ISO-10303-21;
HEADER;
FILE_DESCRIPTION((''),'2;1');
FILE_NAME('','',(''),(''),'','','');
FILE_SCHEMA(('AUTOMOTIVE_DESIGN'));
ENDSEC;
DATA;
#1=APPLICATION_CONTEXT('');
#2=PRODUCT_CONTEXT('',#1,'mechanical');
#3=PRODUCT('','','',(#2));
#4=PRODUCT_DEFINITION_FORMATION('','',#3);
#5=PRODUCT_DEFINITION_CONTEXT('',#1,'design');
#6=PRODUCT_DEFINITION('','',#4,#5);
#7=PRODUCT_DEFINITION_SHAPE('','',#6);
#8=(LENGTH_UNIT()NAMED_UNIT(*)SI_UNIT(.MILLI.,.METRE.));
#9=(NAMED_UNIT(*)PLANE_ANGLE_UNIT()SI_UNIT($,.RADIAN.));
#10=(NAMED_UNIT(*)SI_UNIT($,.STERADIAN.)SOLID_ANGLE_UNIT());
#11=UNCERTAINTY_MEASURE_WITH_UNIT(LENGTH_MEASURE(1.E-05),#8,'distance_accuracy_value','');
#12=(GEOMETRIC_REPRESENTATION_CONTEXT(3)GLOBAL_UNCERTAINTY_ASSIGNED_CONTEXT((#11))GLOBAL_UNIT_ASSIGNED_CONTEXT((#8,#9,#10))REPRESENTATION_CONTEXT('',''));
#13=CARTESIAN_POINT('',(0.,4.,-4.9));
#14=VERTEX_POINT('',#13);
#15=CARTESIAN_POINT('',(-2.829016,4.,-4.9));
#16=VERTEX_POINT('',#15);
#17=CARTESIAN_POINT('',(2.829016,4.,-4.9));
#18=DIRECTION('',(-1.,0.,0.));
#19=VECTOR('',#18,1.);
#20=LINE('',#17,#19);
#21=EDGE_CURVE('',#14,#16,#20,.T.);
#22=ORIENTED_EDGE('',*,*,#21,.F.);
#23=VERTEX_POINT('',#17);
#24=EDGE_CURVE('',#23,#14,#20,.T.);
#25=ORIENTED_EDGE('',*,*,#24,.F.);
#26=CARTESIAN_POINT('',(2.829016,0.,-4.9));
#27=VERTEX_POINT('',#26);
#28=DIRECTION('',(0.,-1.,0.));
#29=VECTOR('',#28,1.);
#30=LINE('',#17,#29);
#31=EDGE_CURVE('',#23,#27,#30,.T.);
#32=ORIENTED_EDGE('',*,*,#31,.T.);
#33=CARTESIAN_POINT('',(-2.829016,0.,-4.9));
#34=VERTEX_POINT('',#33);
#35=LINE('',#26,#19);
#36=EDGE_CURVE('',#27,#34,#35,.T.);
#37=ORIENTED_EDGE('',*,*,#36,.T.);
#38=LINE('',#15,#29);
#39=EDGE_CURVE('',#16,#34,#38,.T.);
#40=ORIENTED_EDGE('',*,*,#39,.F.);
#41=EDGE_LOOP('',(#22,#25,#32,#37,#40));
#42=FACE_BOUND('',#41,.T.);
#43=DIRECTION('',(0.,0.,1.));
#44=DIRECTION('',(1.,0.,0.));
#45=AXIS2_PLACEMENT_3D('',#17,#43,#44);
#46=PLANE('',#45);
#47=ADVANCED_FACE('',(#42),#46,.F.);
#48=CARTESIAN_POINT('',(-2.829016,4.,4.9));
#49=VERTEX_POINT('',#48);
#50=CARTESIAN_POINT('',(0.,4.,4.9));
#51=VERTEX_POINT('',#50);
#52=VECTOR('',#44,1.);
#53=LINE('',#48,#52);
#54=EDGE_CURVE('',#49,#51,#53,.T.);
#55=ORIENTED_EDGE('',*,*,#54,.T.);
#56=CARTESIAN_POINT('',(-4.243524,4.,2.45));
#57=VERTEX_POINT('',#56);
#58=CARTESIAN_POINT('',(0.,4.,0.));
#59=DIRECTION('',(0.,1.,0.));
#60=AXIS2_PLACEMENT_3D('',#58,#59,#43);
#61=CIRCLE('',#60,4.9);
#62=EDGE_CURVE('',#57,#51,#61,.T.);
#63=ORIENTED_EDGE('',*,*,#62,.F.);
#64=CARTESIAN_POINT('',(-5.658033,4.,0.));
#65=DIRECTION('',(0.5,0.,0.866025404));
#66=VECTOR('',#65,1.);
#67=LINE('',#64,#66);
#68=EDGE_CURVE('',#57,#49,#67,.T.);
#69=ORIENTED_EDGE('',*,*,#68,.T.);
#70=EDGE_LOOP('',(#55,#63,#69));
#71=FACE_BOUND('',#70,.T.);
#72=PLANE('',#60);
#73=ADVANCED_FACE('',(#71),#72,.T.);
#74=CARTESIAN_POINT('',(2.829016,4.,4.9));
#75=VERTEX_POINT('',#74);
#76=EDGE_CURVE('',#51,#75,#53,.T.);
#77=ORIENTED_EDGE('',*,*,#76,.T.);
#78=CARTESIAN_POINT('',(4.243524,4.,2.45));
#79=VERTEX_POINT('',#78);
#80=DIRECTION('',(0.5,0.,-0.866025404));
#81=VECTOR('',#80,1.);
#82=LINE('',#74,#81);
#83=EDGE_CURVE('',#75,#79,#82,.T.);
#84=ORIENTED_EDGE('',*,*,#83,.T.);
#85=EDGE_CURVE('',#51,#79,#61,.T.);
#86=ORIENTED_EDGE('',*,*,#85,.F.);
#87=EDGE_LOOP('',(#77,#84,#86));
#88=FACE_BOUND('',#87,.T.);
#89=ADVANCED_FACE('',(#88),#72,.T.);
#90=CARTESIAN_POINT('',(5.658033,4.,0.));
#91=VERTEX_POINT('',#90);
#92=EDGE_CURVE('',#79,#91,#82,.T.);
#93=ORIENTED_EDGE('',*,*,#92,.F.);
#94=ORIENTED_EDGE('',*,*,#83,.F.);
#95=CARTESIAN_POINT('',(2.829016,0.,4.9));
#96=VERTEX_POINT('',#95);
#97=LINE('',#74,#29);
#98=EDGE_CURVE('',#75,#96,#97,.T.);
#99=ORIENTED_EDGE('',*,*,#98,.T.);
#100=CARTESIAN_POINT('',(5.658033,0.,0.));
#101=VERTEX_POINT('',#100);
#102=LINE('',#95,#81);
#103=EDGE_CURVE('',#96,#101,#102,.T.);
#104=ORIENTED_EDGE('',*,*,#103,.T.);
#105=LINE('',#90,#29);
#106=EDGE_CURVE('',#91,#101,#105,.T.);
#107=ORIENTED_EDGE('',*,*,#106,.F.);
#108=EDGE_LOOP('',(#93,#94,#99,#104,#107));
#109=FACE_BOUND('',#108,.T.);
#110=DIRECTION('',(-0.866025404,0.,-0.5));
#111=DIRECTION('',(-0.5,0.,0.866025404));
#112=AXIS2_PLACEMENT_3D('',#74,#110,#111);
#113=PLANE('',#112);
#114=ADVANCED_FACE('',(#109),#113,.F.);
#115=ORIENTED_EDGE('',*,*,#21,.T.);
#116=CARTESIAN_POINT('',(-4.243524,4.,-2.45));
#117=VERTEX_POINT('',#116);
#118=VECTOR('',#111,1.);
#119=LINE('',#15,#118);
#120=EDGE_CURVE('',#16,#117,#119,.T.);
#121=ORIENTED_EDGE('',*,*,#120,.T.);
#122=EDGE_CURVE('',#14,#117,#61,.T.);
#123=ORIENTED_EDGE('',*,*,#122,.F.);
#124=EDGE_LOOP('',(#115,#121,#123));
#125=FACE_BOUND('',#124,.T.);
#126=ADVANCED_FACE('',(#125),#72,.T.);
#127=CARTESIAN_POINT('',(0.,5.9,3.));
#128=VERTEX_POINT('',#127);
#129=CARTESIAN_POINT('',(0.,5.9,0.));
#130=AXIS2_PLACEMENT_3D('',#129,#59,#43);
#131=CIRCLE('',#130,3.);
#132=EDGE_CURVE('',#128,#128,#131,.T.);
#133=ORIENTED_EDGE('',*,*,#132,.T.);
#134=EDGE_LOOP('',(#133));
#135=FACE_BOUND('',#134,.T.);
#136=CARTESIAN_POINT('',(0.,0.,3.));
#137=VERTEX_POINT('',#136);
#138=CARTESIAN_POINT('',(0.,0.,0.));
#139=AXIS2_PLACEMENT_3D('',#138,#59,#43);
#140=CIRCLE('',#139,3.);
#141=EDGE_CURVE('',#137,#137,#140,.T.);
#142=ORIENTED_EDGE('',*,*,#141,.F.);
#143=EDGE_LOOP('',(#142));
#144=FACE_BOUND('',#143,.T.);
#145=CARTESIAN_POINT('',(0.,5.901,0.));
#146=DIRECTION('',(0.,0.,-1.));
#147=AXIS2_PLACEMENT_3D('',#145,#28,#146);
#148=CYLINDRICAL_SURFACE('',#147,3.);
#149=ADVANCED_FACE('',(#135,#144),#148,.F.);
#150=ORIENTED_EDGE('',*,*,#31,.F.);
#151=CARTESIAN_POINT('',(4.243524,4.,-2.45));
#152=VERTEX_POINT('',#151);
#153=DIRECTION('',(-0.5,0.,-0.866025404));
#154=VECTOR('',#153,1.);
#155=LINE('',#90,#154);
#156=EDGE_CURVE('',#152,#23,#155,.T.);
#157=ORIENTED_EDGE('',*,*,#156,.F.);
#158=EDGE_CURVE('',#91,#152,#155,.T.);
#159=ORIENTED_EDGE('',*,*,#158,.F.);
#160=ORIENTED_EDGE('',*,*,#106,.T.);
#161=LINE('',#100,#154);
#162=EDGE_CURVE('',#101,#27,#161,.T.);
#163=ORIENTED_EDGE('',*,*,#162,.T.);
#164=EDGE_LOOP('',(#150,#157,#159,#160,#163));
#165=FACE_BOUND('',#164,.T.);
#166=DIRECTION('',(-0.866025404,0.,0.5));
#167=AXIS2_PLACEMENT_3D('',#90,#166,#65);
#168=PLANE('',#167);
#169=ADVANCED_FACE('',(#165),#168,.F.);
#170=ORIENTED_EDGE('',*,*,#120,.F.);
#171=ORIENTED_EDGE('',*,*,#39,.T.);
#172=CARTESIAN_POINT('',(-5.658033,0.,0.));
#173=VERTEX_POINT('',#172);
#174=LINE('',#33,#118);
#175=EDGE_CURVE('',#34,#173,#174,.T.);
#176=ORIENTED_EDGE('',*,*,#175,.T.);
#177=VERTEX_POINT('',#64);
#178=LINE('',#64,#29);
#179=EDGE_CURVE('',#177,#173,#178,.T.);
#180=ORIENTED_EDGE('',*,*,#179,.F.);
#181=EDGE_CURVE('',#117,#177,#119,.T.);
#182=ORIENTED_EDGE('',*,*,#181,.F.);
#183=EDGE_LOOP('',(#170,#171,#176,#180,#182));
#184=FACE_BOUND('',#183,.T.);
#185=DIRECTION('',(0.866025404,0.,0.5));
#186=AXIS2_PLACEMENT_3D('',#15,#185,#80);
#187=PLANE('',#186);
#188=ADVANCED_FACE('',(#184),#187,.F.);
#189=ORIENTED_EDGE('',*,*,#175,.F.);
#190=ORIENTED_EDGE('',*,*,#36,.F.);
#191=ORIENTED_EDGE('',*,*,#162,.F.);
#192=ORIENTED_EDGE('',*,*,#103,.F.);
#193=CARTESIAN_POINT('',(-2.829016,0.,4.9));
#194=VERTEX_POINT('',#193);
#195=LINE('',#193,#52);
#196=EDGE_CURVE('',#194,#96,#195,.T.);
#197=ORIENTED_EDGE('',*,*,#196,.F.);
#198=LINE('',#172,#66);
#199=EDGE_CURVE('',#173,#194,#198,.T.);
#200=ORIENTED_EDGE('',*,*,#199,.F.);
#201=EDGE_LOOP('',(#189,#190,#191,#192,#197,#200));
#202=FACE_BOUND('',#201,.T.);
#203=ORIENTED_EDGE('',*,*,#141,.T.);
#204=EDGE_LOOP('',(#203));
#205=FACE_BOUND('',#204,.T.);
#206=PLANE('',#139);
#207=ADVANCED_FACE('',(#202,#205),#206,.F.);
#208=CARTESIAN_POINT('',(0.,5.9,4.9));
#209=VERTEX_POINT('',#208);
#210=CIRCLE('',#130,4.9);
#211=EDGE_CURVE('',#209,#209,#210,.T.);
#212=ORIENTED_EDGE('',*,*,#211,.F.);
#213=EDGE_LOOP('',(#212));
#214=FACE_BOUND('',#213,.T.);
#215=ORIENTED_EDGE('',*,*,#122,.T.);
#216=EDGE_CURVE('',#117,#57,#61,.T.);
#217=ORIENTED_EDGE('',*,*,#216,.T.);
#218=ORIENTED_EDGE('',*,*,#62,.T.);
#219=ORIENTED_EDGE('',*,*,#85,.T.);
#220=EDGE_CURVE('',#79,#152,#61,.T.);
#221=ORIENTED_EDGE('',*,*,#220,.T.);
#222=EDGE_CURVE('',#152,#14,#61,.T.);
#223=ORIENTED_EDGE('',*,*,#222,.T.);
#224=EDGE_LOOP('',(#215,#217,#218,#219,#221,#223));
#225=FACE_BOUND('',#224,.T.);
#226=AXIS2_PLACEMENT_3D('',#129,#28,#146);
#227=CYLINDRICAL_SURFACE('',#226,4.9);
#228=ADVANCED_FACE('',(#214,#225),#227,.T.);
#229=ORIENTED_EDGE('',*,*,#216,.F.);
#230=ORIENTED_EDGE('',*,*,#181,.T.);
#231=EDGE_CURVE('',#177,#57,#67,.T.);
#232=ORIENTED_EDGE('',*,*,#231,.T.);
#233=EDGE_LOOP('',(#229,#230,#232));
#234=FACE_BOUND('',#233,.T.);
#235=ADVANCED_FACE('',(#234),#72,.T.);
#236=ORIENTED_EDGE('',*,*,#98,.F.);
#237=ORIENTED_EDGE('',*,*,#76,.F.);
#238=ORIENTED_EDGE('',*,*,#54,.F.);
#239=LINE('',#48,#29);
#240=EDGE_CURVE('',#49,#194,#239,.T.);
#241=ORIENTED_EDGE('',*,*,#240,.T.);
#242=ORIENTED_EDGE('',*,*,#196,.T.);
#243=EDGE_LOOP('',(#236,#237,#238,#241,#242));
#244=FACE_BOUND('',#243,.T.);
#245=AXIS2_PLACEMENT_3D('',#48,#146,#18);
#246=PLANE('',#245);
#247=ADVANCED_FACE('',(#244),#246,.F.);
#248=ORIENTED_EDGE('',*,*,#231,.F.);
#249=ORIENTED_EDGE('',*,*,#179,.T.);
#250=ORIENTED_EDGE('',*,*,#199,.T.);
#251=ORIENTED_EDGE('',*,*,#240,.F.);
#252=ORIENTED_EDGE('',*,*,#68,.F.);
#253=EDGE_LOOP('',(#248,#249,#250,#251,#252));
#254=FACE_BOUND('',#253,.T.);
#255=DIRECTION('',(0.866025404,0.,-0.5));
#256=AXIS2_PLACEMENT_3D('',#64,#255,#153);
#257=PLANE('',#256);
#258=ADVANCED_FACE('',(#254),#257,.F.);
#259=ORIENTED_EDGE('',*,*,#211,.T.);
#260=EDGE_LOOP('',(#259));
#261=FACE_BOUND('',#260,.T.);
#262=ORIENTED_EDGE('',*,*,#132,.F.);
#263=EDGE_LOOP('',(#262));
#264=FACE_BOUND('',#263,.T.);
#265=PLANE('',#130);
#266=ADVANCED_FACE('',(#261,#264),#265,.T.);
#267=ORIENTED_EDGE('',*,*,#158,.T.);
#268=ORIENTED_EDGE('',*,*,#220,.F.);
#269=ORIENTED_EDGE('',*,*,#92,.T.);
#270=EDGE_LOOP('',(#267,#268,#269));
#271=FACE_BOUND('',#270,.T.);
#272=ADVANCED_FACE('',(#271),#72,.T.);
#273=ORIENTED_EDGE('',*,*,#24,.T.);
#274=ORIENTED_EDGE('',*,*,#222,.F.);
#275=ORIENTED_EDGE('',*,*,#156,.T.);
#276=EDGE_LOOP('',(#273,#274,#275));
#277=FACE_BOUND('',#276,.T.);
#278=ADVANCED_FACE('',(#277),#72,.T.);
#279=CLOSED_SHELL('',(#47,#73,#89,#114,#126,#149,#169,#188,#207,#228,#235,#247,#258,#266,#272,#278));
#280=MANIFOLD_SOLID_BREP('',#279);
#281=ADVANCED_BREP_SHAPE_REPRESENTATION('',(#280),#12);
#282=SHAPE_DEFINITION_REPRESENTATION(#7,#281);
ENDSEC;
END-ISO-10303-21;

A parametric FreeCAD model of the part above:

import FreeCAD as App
import Part
import Sketcher
Q = App.Units.Quantity


def add_polygon(sketch, points):
    """Adds a closed chain of lines whose ends are joined by coincident constraints."""
    first, n = sketch.GeometryCount, len(points)
    for a, b in zip(points, points[1:] + points[:1]):
        sketch.addGeometry(Part.LineSegment(App.Vector(*a, 0), App.Vector(*b, 0)), False)
    for i in range(n):
        sketch.addConstraint(Sketcher.Constraint("Coincident", first + i, 2, first + (i + 1) % n, 1))

doc = App.newDocument("Part")
body = doc.addObject("PartDesign::Body", "Body")

sketch1 = doc.addObject("Sketcher::SketchObject", "Sketch")
body.addObject(sketch1)
sketch1.AttachmentSupport = (doc.XZ_Plane, [""])
sketch1.MapMode = "FlatFace"
add_polygon(sketch1, [(5.658033, 0), (2.829016, -4.9), (-2.829016, -4.9), (-5.658033, 0), (-2.829016, 4.9), (2.829016, 4.9)])
sketch1.addConstraint([
    Sketcher.Constraint("Horizontal", 1),
    Sketcher.Constraint("Horizontal", 4),
    Sketcher.Constraint("Symmetric", 0, 2, 3, 2, -1, 1),
    Sketcher.Constraint("Symmetric", 2, 2, 5, 2, -1, 1),
    Sketcher.Constraint("PointOnObject", 2, 2, -1),
    Sketcher.Constraint("Parallel", 2, 5),
    Sketcher.Constraint("Vertical", 1, 2, 3, 2),
    Sketcher.Constraint("Angle", 0, Q("-120 deg")),
    Sketcher.Constraint("DistanceY", 0, 2, -1, 1, 4.9),
    Sketcher.Constraint("DistanceX", 1, 2, 1, 1, 5.658033),
])
pad1 = doc.addObject("PartDesign::Pad", "Pad")
body.addObject(pad1)
pad1.Profile = sketch1
pad1.Length = 4
pad1.Reversed = True

sketch2 = doc.addObject("Sketcher::SketchObject", "Sketch001")
body.addObject(sketch2)
sketch2.AttachmentSupport = (doc.XZ_Plane, [""])
sketch2.MapMode = "FlatFace"
sketch2.AttachmentOffset = App.Placement(App.Vector(0, 0, -4), App.Rotation())
sketch2.addGeometry(Part.Circle(App.Vector(0, 0, 0), App.Vector(0, 0, 1), 4.9), False)
sketch2.addConstraint([
    Sketcher.Constraint("Coincident", 0, 3, -1, 1),
    Sketcher.Constraint("Diameter", 0, 9.8),
])
pad2 = doc.addObject("PartDesign::Pad", "Pad001")
body.addObject(pad2)
pad2.Profile = sketch2
pad2.Length = 1.9
pad2.Reversed = True

sketch3 = doc.addObject("Sketcher::SketchObject", "Sketch002")
body.addObject(sketch3)
sketch3.AttachmentSupport = (doc.XZ_Plane, [""])
sketch3.MapMode = "FlatFace"
sketch3.addGeometry(Part.Circle(App.Vector(0, 0, 0), App.Vector(0, 0, 1), 3), False)
sketch3.addConstraint([
    Sketcher.Constraint("Coincident", 0, 3, -1, 1),
    Sketcher.Constraint("Diameter", 0, 6.0),
])
pocket1 = doc.addObject("PartDesign::Pocket", "Pocket")
body.addObject(pocket1)
pocket1.Profile = sketch3
pocket1.Type = "UpToFirst"

doc.recompute()
